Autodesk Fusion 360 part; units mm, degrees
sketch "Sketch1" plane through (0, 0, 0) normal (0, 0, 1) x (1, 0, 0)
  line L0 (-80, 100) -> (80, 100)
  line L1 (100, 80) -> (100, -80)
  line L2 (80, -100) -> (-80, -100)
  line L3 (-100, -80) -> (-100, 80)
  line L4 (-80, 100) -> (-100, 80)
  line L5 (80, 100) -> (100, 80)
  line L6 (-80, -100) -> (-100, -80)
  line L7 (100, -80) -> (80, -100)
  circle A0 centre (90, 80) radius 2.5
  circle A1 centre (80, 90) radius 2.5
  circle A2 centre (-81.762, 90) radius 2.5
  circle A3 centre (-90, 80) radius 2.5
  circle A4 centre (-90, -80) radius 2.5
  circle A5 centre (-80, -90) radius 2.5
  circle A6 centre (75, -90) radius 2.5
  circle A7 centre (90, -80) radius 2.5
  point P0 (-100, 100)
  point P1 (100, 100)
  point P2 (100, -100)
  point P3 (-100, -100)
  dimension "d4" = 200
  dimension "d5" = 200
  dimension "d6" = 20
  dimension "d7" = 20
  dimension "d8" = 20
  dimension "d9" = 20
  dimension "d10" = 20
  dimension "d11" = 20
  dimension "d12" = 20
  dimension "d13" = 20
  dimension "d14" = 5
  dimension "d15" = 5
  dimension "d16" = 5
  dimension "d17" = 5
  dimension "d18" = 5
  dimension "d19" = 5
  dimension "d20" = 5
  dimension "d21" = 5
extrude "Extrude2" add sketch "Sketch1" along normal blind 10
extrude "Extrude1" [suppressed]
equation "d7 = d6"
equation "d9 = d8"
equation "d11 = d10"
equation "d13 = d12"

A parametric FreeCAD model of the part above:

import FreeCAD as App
import Part
import Sketcher

V = App.Vector
Q = App.Units.Quantity

doc = App.newDocument("Part")
body = doc.addObject("PartDesign::Body", "Body")

# Sketch on XY plane
sketch1 = doc.addObject("Sketcher::SketchObject", "Sketch")
body.addObject(sketch1)
sketch1.AttachmentSupport = (doc.XY_Plane, [""])
sketch1.MapMode = "FlatFace"
sketch1.addGeometry([
    Part.LineSegment(V(80, 100, 0), V(-80, 100, 0)),  # 0
    Part.LineSegment(V(-80, 100, 0), V(-100, 80, 0)),  # 1
    Part.LineSegment(V(-100, 80, 0), V(-100, -80, 0)),  # 2
    Part.LineSegment(V(-100, -80, 0), V(-80, -100, 0)),  # 3
    Part.LineSegment(V(-80, -100, 0), V(80, -100, 0)),  # 4
    Part.LineSegment(V(80, -100, 0), V(100, -80, 0)),  # 5
    Part.LineSegment(V(100, -80, 0), V(100, 80, 0)),  # 6
    Part.LineSegment(V(100, 80, 0), V(80, 100, 0)),  # 7
    Part.Circle(V(-80, -90, 0), V(0, 0, 1), 2.5),  # 8
    Part.Circle(V(-90, -80, 0), V(0, 0, 1), 2.5),  # 9
    Part.Circle(V(75, -90, 0), V(0, 0, 1), 2.5),  # 10
    Part.Circle(V(90, -80, 0), V(0, 0, 1), 2.5),  # 11
    Part.Circle(V(-90, 80, 0), V(0, 0, 1), 2.5),  # 12
    Part.Circle(V(-81.762, 90, 0), V(0, 0, 1), 2.5),  # 13
    Part.Circle(V(90, 80, 0), V(0, 0, 1), 2.5),  # 14
    Part.Circle(V(80, 90, 0), V(0, 0, 1), 2.5),  # 15
], False)
sketch1.addConstraint([
    Sketcher.Constraint("Coincident", 0, 2, 1, 1),
    Sketcher.Constraint("Coincident", 1, 2, 2, 1),
    Sketcher.Constraint("Coincident", 2, 2, 3, 1),
    Sketcher.Constraint("Coincident", 3, 2, 4, 1),
    Sketcher.Constraint("Coincident", 4, 2, 5, 1),
    Sketcher.Constraint("Coincident", 5, 2, 6, 1),
    Sketcher.Constraint("Coincident", 6, 2, 7, 1),
    Sketcher.Constraint("Coincident", 7, 2, 0, 1),
    Sketcher.Constraint("Horizontal", 0),
    Sketcher.Constraint("Vertical", 2),
    Sketcher.Constraint("Horizontal", 4),
    Sketcher.Constraint("Vertical", 6),
    Sketcher.Constraint("Equal", 8, 9),
    Sketcher.Constraint("Equal", 9, 10),
    Sketcher.Constraint("Equal", 10, 11),
    Sketcher.Constraint("Equal", 11, 12),
    Sketcher.Constraint("Equal", 12, 13),
    Sketcher.Constraint("Equal", 13, 14),
    Sketcher.Constraint("Equal", 14, 15),
    Sketcher.Constraint("Symmetric", 11, 3, 12, 3, -1, 1),
    Sketcher.Constraint("Symmetric", 9, 3, 14, 3, -1, 1),
    Sketcher.Constraint("Symmetric", 8, 3, 15, 3, -1, 1),
    Sketcher.Constraint("Symmetric", 0, 2, 4, 2, -1, 1),
    Sketcher.Constraint("Symmetric", 1, 2, 5, 2, -1, 1),
    Sketcher.Constraint("Symmetric", 9, 3, 11, 3, -2),
    Sketcher.Constraint("Perpendicular", 1, 3),
    Sketcher.Constraint("Perpendicular", 5, 7),
    Sketcher.Constraint("Horizontal", 8, 3, 10, 3),
    Sketcher.Constraint("Horizontal", 13, 3, 15, 3),
    Sketcher.Constraint("Horizontal", 14, 3, 1, 2),
    Sketcher.Constraint("Horizontal", 11, 3, 2, 2),
    Sketcher.Constraint("Horizontal", 1, 2, 6, 2),
    Sketcher.Constraint("Vertical", 8, 3, 0, 2),
    Sketcher.Constraint("Vertical", 0, 2, 3, 2),
    Sketcher.Constraint("Equal", 4, 2),
    Sketcher.Constraint("Diameter", 8, Q("5 mm")),
    Sketcher.Constraint("DistanceX", 10, 3, 15, 3, Q("5 mm")),
    Sketcher.Constraint("DistanceY", 12, 3, 0, 2, Q("20 mm")),
    Sketcher.Constraint("DistanceX", 0, 2, 0, 1, Q("160 mm")),
    Sketcher.Constraint("DistanceY", 8, 3, -1, 1, Q("90 mm")),
    Sketcher.Constraint("DistanceX", 9, 3, -1, 1, Q("90 mm")),
    Sketcher.Constraint("DistanceX", 13, 3, -1, 1, Q("81.762 mm")),
])
pad1 = doc.addObject("PartDesign::Pad", "Pad")
body.addObject(pad1)
pad1.Profile = sketch1
pad1.Length = 10

doc.recompute()
